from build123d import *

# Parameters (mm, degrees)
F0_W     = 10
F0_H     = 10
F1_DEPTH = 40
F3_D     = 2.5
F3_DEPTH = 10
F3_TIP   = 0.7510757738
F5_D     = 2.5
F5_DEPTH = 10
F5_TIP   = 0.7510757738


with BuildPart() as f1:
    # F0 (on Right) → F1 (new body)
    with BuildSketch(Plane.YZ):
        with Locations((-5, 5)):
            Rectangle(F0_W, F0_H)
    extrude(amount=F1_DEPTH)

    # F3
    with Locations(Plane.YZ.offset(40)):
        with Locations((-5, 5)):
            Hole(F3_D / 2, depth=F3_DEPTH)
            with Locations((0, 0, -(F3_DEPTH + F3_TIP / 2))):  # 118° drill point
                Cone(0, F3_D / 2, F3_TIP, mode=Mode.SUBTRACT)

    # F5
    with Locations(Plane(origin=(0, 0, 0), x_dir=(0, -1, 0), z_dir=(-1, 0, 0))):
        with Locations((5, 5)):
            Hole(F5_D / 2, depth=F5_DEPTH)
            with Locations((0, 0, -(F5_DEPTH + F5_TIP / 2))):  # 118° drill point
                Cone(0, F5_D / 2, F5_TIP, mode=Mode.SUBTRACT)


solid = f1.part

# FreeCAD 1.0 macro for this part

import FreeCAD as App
import Part
import Sketcher

doc = App.newDocument("Part")
body = doc.addObject("PartDesign::Body", "Body")

# Sketch on YZ plane
sketch1 = body.newObject("Sketcher::SketchObject", "Sketch")
sketch1.AttachmentSupport = (doc.getObject("YZ_Plane"), [""])
sketch1.MapMode = "FlatFace"
sketch1.addGeometry([
    Part.LineSegment(App.Vector(-10, 10, 0), App.Vector(-10, 0, 0)),
    Part.LineSegment(App.Vector(-10, 0, 0), App.Vector(0, 0, 0)),
    Part.LineSegment(App.Vector(0, 0, 0), App.Vector(0, 10, 0)),
    Part.LineSegment(App.Vector(0, 10, 0), App.Vector(-10, 10, 0)),
], False)
sketch1.addConstraint([
    Sketcher.Constraint("Coincident", 0, 2, 1, 1),
    Sketcher.Constraint("Coincident", 1, 2, 2, 1),
    Sketcher.Constraint("Coincident", 2, 2, 3, 1),
    Sketcher.Constraint("Coincident", 3, 2, 0, 1),
    Sketcher.Constraint("Vertical", 0),
    Sketcher.Constraint("Horizontal", 1),
    Sketcher.Constraint("Vertical", 2),
    Sketcher.Constraint("Horizontal", 3),
    Sketcher.Constraint("Coincident", 1, 2, -1, 1),
    Sketcher.Constraint("Equal", 3, 0),
    Sketcher.Constraint("DistanceX", 1, 1, 1, 2, 10.0),
])
pad1 = body.newObject("PartDesign::Pad", "Pad")
pad1.Profile = sketch1
pad1.Length = 40

# Sketch on YZ plane
sketch2 = body.newObject("Sketcher::SketchObject", "Sketch001")
sketch2.AttachmentSupport = (doc.getObject("YZ_Plane"), [""])
sketch2.MapMode = "FlatFace"
sketch2.AttachmentOffset = App.Placement(App.Vector(0, 0, 40), App.Rotation())
sketch2.addGeometry(Part.Circle(App.Vector(-5, 5, 0), App.Vector(0, 0, 1), 1.2), False)
sketch2.addConstraint([
    Sketcher.Constraint("Diameter", 0, 2.5),
    Sketcher.Constraint("DistanceX", 0, 3, -1, 1, 5.0),
    Sketcher.Constraint("DistanceY", -1, 1, 0, 3, 5.0),
])
doc.recompute()
hole = body.newObject("PartDesign::Hole", "Hole")
hole.Profile = sketch2
hole.ThreadType = "None"
hole.Diameter = 2.5
hole.DepthType = "Dimension"
hole.Depth = 10
hole.DrillPoint = "Angled"
hole.DrillPointAngle = 118

# Sketch on YZ plane
sketch3 = body.newObject("Sketcher::SketchObject", "Sketch002")
sketch3.AttachmentSupport = (doc.getObject("YZ_Plane"), [""])
sketch3.MapMode = "FlatFace"
sketch3.addGeometry(Part.Circle(App.Vector(-5, 5, 0), App.Vector(0, 0, 1), 1.2), False)
sketch3.addConstraint([
    Sketcher.Constraint("Diameter", 0, 2.5),
    Sketcher.Constraint("DistanceX", 0, 3, -1, 1, 5.0),
    Sketcher.Constraint("DistanceY", -1, 1, 0, 3, 5.0),
])
doc.recompute()
hole2 = body.newObject("PartDesign::Hole", "Hole001")
hole2.Profile = sketch3
hole2.ThreadType = "None"
hole2.Diameter = 2.5
hole2.DepthType = "Dimension"
hole2.Depth = 10
hole2.DrillPoint = "Angled"
hole2.DrillPointAngle = 118
hole2.Reversed = True

doc.recompute()
